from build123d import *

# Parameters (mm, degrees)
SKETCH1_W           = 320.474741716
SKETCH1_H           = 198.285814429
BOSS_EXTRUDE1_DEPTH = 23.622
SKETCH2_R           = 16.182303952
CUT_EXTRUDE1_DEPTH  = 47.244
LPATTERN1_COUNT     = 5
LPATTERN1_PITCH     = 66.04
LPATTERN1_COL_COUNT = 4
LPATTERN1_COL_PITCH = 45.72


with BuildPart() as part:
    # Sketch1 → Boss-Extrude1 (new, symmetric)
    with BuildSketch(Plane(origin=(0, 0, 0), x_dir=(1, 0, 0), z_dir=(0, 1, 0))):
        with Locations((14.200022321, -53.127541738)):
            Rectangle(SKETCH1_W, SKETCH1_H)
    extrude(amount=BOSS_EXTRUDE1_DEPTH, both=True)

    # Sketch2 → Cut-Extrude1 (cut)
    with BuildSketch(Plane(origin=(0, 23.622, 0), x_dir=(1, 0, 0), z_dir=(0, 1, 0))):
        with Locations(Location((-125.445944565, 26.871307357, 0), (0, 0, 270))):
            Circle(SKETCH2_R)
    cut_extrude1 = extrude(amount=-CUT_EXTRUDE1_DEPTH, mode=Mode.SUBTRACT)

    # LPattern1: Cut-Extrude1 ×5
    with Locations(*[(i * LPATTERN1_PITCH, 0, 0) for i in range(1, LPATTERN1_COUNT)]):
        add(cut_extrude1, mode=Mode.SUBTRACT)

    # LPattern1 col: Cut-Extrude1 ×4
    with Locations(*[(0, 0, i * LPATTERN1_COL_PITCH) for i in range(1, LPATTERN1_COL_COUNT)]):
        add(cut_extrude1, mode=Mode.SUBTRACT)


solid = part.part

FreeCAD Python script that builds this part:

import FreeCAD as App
import Part
import Sketcher
from FreeCAD import Vector
Q = App.Units.Quantity

doc = App.newDocument("Part")
body = doc.addObject("PartDesign::Body", "Body")

sketch1 = body.newObject("Sketcher::SketchObject", "Sketch")
sketch1.AttachmentSupport = (doc.getObject("XZ_Plane"), [""])
sketch1.MapMode = "FlatFace"
sketch1.addGeometry(Part.LineSegment(Vector(-146.037349, -46.015365, 0), Vector(-146.037349, 152.270449, 0)), False)
sketch1.addGeometry(Part.LineSegment(Vector(-146.037349, 152.270449, 0), Vector(174.437393, 152.270449, 0)), False)
sketch1.addGeometry(Part.LineSegment(Vector(174.437393, 152.270449, 0), Vector(174.437393, -46.015365, 0)), False)
sketch1.addGeometry(Part.LineSegment(Vector(174.437393, -46.015365, 0), Vector(-146.037349, -46.015365, 0)), False)
sketch1.addConstraint(Sketcher.Constraint("Coincident", 0, 2, 1, 1))
sketch1.addConstraint(Sketcher.Constraint("Coincident", 1, 2, 2, 1))
sketch1.addConstraint(Sketcher.Constraint("Coincident", 2, 2, 3, 1))
sketch1.addConstraint(Sketcher.Constraint("Coincident", 3, 2, 0, 1))
sketch1.addConstraint(Sketcher.Constraint("Vertical", 0))
sketch1.addConstraint(Sketcher.Constraint("Horizontal", 1))
sketch1.addConstraint(Sketcher.Constraint("Vertical", 2))
sketch1.addConstraint(Sketcher.Constraint("Horizontal", 3))
sketch1.addConstraint(Sketcher.Constraint("DistanceX", 1, 1, 1, 2, 320.474742))
sketch1.addConstraint(Sketcher.Constraint("DistanceY", 0, 1, 0, 2, 198.285814))
sketch1.addConstraint(Sketcher.Constraint("DistanceX", 0, 2, -1, 1, 146.037349))
sketch1.addConstraint(Sketcher.Constraint("DistanceY", -1, 1, 0, 2, 152.270449))
pad1 = body.newObject("PartDesign::Pad", "Pad")
pad1.Profile = sketch1
pad1.Length = Q("1.86 in")
pad1.Midplane = True

sketch2 = body.newObject("Sketcher::SketchObject", "Sketch001")
sketch2.AttachmentSupport = (doc.getObject("XZ_Plane"), [""])
sketch2.MapMode = "FlatFace"
sketch2.AttachmentOffset = App.Placement(Vector(0, 0, -0.93 * 25.4), App.Rotation())
sketch2.addGeometry(Part.Circle(Vector(-125.445945, -26.871307, 0), Vector(0, 0, 1), 16.182304), False)
sketch2.addConstraint(Sketcher.Constraint("Diameter", 0, 32.364608))
sketch2.addConstraint(Sketcher.Constraint("DistanceX", 0, 3, -1, 1, 125.445945))
sketch2.addConstraint(Sketcher.Constraint("DistanceY", 0, 3, -1, 1, 26.871307))
pocket1 = body.newObject("PartDesign::Pocket", "Pocket")
pocket1.Profile = sketch2
pocket1.Length = Q("1.86 in")
pocket1.Reversed = True
doc.recompute()

linearpattern = body.newObject("PartDesign::LinearPattern", "LinearPattern")
linearpattern.Originals = [pocket1]
linearpattern.Direction = (doc.getObject("X_Axis"), [""])
linearpattern.Mode = "offset"
linearpattern.Offset = Q("2.6 in")
linearpattern.Occurrences = 5
body.Tip = linearpattern
doc.recompute()

linearpattern2 = body.newObject("PartDesign::LinearPattern", "LinearPattern001")
linearpattern2.Originals = [pocket1]
linearpattern2.Direction = (doc.getObject("Z_Axis"), [""])
linearpattern2.Mode = "offset"
linearpattern2.Offset = Q("1.8 in")
linearpattern2.Occurrences = 4
body.Tip = linearpattern2

doc.recompute()
